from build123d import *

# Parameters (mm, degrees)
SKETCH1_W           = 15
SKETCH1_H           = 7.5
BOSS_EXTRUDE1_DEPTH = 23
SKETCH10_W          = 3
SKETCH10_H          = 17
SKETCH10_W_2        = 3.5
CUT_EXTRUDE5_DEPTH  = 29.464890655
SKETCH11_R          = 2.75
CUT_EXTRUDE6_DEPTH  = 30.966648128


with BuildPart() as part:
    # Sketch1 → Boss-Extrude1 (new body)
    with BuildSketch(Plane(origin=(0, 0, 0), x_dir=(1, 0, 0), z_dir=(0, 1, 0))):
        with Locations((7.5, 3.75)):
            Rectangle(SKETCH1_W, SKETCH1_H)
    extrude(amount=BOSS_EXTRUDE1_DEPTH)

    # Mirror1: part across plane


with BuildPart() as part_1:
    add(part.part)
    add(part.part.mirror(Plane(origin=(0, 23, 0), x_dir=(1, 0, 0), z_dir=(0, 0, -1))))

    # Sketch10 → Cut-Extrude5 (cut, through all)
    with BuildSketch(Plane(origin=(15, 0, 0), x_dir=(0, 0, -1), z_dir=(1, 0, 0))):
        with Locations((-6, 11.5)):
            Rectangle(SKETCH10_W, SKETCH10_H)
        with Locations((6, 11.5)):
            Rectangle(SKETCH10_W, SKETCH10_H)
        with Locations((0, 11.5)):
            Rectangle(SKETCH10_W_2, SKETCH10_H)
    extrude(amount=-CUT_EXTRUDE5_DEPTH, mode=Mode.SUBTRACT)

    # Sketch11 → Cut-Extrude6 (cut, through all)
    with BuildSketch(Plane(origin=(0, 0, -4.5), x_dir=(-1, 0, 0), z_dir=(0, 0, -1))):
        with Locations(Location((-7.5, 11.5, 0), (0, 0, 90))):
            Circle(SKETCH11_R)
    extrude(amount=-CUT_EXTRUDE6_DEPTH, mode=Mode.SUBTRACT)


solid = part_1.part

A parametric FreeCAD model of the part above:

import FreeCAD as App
import Part
import Sketcher

V = App.Vector
Q = App.Units.Quantity


def add_polygon(sketch, points):
    """Adds a closed chain of lines whose ends are joined by coincident constraints."""
    first, n = sketch.GeometryCount, len(points)
    for a, b in zip(points, points[1:] + points[:1]):
        sketch.addGeometry(Part.LineSegment(App.Vector(*a, 0), App.Vector(*b, 0)), False)
    for i in range(n):
        sketch.addConstraint(Sketcher.Constraint("Coincident", first + i, 2, first + (i + 1) % n, 1))

doc = App.newDocument("Part")
body = doc.addObject("PartDesign::Body", "Body")

# Sketch on XZ plane
sketch1 = body.newObject("Sketcher::SketchObject", "Sketch")
sketch1.AttachmentSupport = (doc.getObject("XZ_Plane"), [""])
sketch1.MapMode = "FlatFace"
add_polygon(sketch1, [(0, -8), (0, 0), (15, 0), (15, -8)])  # lines 0-3
sketch1.addConstraint([
    Sketcher.Constraint("Vertical", 0),
    Sketcher.Constraint("Horizontal", 1),
    Sketcher.Constraint("Vertical", 2),
    Sketcher.Constraint("Horizontal", 3),
    Sketcher.Constraint("Coincident", 0, 2, -1, 1),
    Sketcher.Constraint("DistanceX", 1, 1, 1, 2, Q("15 mm")),
    Sketcher.Constraint("DistanceY", 0, 1, 0, 2, Q("7.5 mm")),
])
pad1 = body.newObject("PartDesign::Pad", "Pad")
pad1.Profile = sketch1
pad1.Length = 23
pad1.Reversed = True
body2 = doc.addObject("PartDesign::Body", "Body001")
doc.recompute()

body2.BaseFeature = body
doc.recompute()

mirroring = doc.addObject("Part::Mirroring", "Mirroring")
mirroring.Source = body
mirroring.Base = V(0, 23, 0)
mirroring.Normal = V(0, 0, -1)
body3 = doc.addObject("PartDesign::Body", "Body002")
body3.BaseFeature = mirroring
boolean = body2.newObject("PartDesign::Boolean", "Boolean")
boolean.Type = "Fuse"
boolean.addObjects([body3])
doc.recompute()

# Sketch on YZ plane
sketch2 = body2.newObject("Sketcher::SketchObject", "Sketch001")
sketch2.AttachmentSupport = (doc.getObject("YZ_Plane001"), [""])
sketch2.MapMode = "FlatFace"
sketch2.AttachmentOffset = App.Placement(V(0, 0, 15), App.Rotation())
add_polygon(sketch2, [(20, 7.5), (3, 7.5), (3, 4.5), (20, 4.5)])  # lines 0-3
add_polygon(sketch2, [(20, -4.5), (3, -4.5), (3, -7.5), (20, -7.5)])  # lines 4-7
add_polygon(sketch2, [(20, 1.8), (3, 1.8), (3, -1.8), (20, -1.8)])  # lines 8-11
sketch2.addConstraint([
    Sketcher.Constraint("Horizontal", 0),
    Sketcher.Constraint("Vertical", 1),
    Sketcher.Constraint("Horizontal", 2),
    Sketcher.Constraint("Vertical", 3),
    Sketcher.Constraint("Horizontal", 4),
    Sketcher.Constraint("Vertical", 5),
    Sketcher.Constraint("Horizontal", 6),
    Sketcher.Constraint("Vertical", 7),
    Sketcher.Constraint("Horizontal", 8),
    Sketcher.Constraint("Vertical", 9),
    Sketcher.Constraint("Horizontal", 10),
    Sketcher.Constraint("Vertical", 11),
    Sketcher.Constraint("Symmetric", 1, 2, 4, 2, -1),
    Sketcher.Constraint("Symmetric", 3, 2, 6, 2, -1),
    Sketcher.Constraint("Vertical", 5, 2, 8, 2),
    Sketcher.Constraint("Vertical", 7, 2, 10, 2),
    Sketcher.Constraint("DistanceX", 0, 2, 0, 1, Q("17 mm")),
    Sketcher.Constraint("DistanceY", 1, 2, 1, 1, Q("3 mm")),
    Sketcher.Constraint("DistanceY", 9, 2, 9, 1, Q("3.5 mm")),
    Sketcher.Constraint("DistanceX", -1, 1, 0, 2, Q("3 mm")),
    Sketcher.Constraint("DistanceY", 4, 2, 1, 2, Q("9 mm")),
    Sketcher.Constraint("DistanceY", -1, 1, 8, 2, Q("1.75 mm")),
])
pocket1 = body2.newObject("PartDesign::Pocket", "Pocket")
pocket1.Profile = sketch2
pocket1.Type = "ThroughAll"

# Sketch on XY plane
sketch3 = body2.newObject("Sketcher::SketchObject", "Sketch002")
sketch3.AttachmentSupport = (doc.getObject("XY_Plane001"), [""])
sketch3.MapMode = "FlatFace"
sketch3.AttachmentOffset = App.Placement(V(0, 0, -4.5), App.Rotation())
sketch3.addGeometry(Part.Circle(V(7.5, 11.5, 0), V(0, 0, 1), 2.8), False)
sketch3.addConstraint([
    Sketcher.Constraint("Diameter", 0, Q("5.5 mm")),
    Sketcher.Constraint("DistanceX", -1, 1, 0, 3, Q("7.5 mm")),
    Sketcher.Constraint("DistanceY", -1, 1, 0, 3, Q("11.5 mm")),
])
pocket2 = body2.newObject("PartDesign::Pocket", "Pocket001")
pocket2.Profile = sketch3
pocket2.Type = "ThroughAll"
pocket2.Reversed = True
mirroring.Visibility = False

doc.recompute()
